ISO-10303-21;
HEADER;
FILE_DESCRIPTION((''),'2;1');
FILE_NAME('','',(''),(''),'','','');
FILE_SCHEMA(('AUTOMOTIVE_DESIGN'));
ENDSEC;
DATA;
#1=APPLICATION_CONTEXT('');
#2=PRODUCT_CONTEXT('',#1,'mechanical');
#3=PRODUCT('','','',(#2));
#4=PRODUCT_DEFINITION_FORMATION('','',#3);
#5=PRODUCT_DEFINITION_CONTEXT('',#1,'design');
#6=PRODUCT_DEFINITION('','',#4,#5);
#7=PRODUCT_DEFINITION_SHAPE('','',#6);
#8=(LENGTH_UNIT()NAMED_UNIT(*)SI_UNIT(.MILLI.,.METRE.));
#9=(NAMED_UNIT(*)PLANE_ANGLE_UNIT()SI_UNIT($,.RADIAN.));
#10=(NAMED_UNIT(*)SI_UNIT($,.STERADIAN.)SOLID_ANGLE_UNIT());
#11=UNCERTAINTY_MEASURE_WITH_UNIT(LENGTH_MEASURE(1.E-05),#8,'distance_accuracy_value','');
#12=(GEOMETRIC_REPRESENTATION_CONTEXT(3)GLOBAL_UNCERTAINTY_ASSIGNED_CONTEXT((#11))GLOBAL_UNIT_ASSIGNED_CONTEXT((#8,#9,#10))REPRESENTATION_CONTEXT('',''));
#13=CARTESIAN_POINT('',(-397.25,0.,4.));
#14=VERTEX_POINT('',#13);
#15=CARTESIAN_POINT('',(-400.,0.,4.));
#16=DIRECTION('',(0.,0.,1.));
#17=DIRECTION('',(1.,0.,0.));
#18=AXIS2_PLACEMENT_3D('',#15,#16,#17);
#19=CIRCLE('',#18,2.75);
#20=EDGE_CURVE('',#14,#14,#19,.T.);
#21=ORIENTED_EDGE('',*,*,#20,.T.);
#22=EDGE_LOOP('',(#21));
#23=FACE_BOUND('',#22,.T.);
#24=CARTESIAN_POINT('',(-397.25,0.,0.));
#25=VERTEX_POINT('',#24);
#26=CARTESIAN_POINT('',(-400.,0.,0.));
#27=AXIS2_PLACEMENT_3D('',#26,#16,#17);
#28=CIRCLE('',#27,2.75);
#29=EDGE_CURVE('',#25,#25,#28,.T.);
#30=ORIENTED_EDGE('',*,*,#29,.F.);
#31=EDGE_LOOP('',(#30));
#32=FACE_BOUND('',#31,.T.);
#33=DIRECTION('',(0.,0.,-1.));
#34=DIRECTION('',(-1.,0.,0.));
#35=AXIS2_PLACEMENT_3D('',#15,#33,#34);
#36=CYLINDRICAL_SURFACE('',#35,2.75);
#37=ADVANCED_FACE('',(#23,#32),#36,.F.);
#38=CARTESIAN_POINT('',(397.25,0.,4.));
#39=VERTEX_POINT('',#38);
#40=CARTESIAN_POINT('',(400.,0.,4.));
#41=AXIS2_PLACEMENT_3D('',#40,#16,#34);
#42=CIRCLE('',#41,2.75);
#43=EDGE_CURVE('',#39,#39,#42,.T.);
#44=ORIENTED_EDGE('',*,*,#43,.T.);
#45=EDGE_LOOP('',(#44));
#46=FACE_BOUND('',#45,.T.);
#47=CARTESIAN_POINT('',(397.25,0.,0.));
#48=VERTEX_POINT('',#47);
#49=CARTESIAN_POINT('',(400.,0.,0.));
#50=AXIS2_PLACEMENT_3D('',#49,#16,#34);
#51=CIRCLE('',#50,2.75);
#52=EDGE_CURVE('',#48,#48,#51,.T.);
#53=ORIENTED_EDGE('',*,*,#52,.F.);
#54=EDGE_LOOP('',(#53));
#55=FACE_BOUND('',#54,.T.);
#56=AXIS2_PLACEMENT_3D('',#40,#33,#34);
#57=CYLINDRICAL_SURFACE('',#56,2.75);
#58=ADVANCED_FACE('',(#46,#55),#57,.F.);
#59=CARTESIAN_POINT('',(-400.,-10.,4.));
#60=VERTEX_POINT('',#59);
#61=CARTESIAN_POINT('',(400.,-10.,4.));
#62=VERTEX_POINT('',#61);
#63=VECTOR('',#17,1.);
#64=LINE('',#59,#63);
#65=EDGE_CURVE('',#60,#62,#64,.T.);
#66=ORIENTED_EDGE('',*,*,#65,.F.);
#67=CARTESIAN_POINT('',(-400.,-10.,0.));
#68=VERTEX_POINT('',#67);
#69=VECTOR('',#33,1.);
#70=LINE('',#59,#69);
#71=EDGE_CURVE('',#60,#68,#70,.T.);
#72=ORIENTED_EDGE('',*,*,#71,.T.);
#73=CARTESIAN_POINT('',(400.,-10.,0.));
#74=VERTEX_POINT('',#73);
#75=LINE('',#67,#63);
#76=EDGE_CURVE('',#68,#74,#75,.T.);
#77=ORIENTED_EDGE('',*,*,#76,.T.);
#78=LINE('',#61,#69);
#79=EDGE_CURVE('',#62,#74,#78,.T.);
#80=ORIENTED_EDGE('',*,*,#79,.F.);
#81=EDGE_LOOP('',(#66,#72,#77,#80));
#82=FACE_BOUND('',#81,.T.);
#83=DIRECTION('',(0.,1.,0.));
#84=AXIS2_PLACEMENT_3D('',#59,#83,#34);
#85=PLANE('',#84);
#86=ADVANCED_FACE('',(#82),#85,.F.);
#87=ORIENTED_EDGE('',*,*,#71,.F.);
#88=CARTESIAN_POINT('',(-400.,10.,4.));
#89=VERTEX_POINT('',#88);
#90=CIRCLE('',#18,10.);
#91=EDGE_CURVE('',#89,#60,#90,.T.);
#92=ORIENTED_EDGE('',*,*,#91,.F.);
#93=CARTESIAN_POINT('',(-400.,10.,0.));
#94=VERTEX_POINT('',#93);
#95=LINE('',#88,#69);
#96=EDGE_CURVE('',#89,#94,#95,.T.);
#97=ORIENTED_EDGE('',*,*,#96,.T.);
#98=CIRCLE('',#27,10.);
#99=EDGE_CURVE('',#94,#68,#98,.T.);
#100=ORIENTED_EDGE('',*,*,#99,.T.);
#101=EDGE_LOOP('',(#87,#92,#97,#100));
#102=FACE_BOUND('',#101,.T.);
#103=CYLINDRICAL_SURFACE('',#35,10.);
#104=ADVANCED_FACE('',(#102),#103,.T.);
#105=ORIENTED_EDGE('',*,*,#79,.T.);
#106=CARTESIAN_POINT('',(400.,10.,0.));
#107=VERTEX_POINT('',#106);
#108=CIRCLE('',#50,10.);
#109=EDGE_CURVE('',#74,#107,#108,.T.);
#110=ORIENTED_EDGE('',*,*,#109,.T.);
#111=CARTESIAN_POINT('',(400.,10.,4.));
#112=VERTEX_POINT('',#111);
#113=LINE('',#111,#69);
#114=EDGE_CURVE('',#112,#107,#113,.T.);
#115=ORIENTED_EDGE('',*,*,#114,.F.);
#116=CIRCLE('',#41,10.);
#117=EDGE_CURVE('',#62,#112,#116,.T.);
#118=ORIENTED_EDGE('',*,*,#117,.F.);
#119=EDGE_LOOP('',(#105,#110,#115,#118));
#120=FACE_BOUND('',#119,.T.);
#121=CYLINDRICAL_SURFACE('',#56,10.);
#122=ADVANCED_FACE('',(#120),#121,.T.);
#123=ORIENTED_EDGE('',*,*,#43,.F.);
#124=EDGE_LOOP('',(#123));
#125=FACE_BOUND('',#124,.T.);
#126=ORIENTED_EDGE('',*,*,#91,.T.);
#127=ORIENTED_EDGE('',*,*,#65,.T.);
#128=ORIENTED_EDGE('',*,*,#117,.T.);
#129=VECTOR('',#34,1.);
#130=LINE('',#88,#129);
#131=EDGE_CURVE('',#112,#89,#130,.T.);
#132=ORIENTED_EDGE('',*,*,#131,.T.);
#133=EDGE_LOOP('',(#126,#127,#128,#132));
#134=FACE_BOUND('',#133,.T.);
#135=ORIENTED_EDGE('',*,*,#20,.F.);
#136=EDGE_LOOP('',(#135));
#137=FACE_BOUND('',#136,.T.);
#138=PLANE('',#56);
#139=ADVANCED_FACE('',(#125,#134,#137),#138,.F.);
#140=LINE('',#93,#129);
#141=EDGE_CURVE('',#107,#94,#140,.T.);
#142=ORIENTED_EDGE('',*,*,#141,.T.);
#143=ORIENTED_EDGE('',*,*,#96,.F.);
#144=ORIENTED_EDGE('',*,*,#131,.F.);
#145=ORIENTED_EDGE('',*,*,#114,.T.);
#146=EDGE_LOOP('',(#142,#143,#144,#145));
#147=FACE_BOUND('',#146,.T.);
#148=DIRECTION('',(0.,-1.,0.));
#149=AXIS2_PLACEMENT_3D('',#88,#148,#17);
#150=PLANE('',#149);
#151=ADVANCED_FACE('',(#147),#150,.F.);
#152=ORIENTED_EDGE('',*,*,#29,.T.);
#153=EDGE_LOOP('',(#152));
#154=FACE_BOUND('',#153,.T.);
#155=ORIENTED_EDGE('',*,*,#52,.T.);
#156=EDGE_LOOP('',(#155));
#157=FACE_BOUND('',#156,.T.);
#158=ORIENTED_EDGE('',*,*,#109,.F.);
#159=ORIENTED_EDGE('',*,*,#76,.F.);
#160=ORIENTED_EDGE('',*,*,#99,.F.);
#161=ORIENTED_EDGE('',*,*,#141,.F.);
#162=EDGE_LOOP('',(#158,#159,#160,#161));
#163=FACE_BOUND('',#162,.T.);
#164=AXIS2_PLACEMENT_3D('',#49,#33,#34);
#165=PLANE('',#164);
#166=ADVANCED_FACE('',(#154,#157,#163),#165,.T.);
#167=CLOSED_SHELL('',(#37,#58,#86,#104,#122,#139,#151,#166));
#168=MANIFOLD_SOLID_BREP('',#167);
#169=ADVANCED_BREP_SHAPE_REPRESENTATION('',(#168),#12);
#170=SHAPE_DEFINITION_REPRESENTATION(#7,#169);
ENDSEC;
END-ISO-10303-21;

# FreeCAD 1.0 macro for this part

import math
import FreeCAD as App
import Part
import Sketcher
from FreeCAD import Vector
Q = App.Units.Quantity

doc = App.newDocument("Part")
body = doc.addObject("PartDesign::Body", "Body")

# Sketch on XY plane
sketch1 = body.newObject("Sketcher::SketchObject", "Sketch")
sketch1.AttachmentSupport = (doc.getObject("XY_Plane"), [""])
sketch1.MapMode = "FlatFace"
sketch1.addGeometry([
    Part.LineSegment(Vector(-400, -10, 0), Vector(400, -10, 0)),  # 0
    Part.ArcOfCircle(Part.Circle(Vector(400, 0, 0), Vector(0, 0, 1), 10), math.radians(-90), math.radians(90)),  # 1
    Part.LineSegment(Vector(400, 10, 0), Vector(-400, 10, 0)),  # 2
    Part.ArcOfCircle(Part.Circle(Vector(-400, 0, 0), Vector(0, 0, 1), 10), math.radians(90), math.radians(270)),  # 3
    Part.Circle(Vector(-400, 0, 0), Vector(0, 0, 1), 2.8),  # 4
    Part.Circle(Vector(400, 0, 0), Vector(0, 0, 1), 2.8),  # 5
], False)
sketch1.addConstraint([
    Sketcher.Constraint("Tangent", 0, 2, 1, 1),
    Sketcher.Constraint("Tangent", 1, 2, 2, 1),
    Sketcher.Constraint("Tangent", 2, 2, 3, 1),
    Sketcher.Constraint("Tangent", 3, 2, 0, 1),
    Sketcher.Constraint("Horizontal", 0),
    Sketcher.Constraint("Horizontal", 2),
    Sketcher.Constraint("Coincident", 4, 3, 3, 3),
    Sketcher.Constraint("Coincident", 5, 3, 1, 3),
    Sketcher.Constraint("Equal", 4, 5),
    Sketcher.Constraint("Symmetric", 1, 3, 3, 3, -1, 1),
    Sketcher.Constraint("Radius", 1, Q("10 mm")),
    Sketcher.Constraint("Diameter", 4, Q("5.5 mm")),
    Sketcher.Constraint("DistanceX", 0, 1, 0, 2, Q("800 mm")),
])
pad1 = body.newObject("PartDesign::Pad", "Pad")
pad1.Profile = sketch1
pad1.Length = 4

doc.recompute()
